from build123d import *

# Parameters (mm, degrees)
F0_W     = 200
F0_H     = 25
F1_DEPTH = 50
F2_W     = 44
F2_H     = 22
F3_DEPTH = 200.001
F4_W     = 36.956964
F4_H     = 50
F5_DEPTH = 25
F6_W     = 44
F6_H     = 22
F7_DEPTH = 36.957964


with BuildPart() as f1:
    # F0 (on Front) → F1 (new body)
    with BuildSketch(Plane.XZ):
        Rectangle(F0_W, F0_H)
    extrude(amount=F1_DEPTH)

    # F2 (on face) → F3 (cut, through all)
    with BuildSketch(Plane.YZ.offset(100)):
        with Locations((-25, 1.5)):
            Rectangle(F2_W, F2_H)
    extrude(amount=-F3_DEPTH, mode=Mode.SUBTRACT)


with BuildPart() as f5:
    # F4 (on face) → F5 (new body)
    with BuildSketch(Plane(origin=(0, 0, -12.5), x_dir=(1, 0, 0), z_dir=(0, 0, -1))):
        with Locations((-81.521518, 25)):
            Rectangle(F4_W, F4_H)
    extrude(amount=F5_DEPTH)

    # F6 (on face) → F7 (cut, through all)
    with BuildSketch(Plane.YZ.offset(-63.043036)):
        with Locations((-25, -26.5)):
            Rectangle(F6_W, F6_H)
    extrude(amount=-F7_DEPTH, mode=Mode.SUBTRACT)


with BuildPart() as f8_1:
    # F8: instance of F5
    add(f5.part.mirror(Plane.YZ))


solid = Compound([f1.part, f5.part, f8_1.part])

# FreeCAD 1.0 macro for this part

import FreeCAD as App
import Part
import Sketcher
from FreeCAD import Vector

doc = App.newDocument("Part")
params = doc.addObject("Spreadsheet::Sheet", "Params")
for row, (alias, value) in enumerate([
    ("sketch1_width", "200 mm"),
    ("sketch1_height", "25 mm"),
    ("pad1_length", "50 mm"),
    ("sketch2_width", "44 mm"),
    ("sketch2_height", "22 mm"),
    ("sketch3_height", "50 mm"),
    ("pad2_length", "25 mm"),
    ("sketch4_width", "44 mm"),
    ("sketch4_height", "22 mm"),
], start=1):
    params.set(f"A{row}", alias)
    params.set(f"B{row}", "=" + value)
    params.setAlias(f"B{row}", alias)

body = doc.addObject("PartDesign::Body", "Body")

# Sketch on XZ plane
sketch1 = body.newObject("Sketcher::SketchObject", "Sketch")
sketch1.AttachmentSupport = (doc.getObject("XZ_Plane"), [""])
sketch1.MapMode = "FlatFace"
sketch1.addGeometry([
    Part.LineSegment(Vector(-100, 12, 0), Vector(-100, -12, 0)),
    Part.LineSegment(Vector(-100, -12, 0), Vector(100, -12, 0)),
    Part.LineSegment(Vector(100, -12, 0), Vector(100, 12, 0)),
    Part.LineSegment(Vector(100, 12, 0), Vector(-100, 12, 0)),
], False)
sketch1.addConstraint([
    Sketcher.Constraint("Coincident", 0, 2, 1, 1),
    Sketcher.Constraint("Coincident", 1, 2, 2, 1),
    Sketcher.Constraint("Coincident", 2, 2, 3, 1),
    Sketcher.Constraint("Coincident", 3, 2, 0, 1),
    Sketcher.Constraint("Vertical", 0),
    Sketcher.Constraint("Horizontal", 1),
    Sketcher.Constraint("Vertical", 2),
    Sketcher.Constraint("Horizontal", 3),
    Sketcher.Constraint("Symmetric", 0, 2, 2, 2, -1, 1),
    Sketcher.Constraint("DistanceX", 1, 1, 1, 2, 200.0),
    Sketcher.Constraint("DistanceY", 0, 2, 0, 1, 25.0),
])
sketch1.setExpression("Constraints[9]", "Params.sketch1_width")
sketch1.setExpression("Constraints[10]", "Params.sketch1_height")
pad1 = body.newObject("PartDesign::Pad", "Pad")
pad1.Profile = sketch1
pad1.setExpression("Length", "Params.pad1_length")

# Sketch on YZ plane
sketch2 = body.newObject("Sketcher::SketchObject", "Sketch001")
sketch2.AttachmentSupport = (doc.getObject("YZ_Plane"), [""])
sketch2.MapMode = "FlatFace"
sketch2.AttachmentOffset = App.Placement(Vector(0, 0, 100), App.Rotation())
sketch2.addGeometry([
    Part.LineSegment(Vector(-47, 12, 0), Vector(-47, -10, 0)),
    Part.LineSegment(Vector(-47, -10, 0), Vector(-3, -10, 0)),
    Part.LineSegment(Vector(-3, -10, 0), Vector(-3, 12, 0)),
    Part.LineSegment(Vector(-3, 12, 0), Vector(-47, 12, 0)),
], False)
sketch2.addConstraint([
    Sketcher.Constraint("Coincident", 0, 2, 1, 1),
    Sketcher.Constraint("Coincident", 1, 2, 2, 1),
    Sketcher.Constraint("Coincident", 2, 2, 3, 1),
    Sketcher.Constraint("Coincident", 3, 2, 0, 1),
    Sketcher.Constraint("Vertical", 0),
    Sketcher.Constraint("Horizontal", 1),
    Sketcher.Constraint("Vertical", 2),
    Sketcher.Constraint("Horizontal", 3),
    Sketcher.Constraint("DistanceX", 1, 1, 1, 2, 44.0),
    Sketcher.Constraint("DistanceY", 0, 2, 0, 1, 22.0),
    Sketcher.Constraint("DistanceX", 0, 2, -1, 1, 47.0),
    Sketcher.Constraint("DistanceY", 0, 2, -1, 1, 9.5),
])
sketch2.setExpression("Constraints[8]", "Params.sketch2_width")
sketch2.setExpression("Constraints[9]", "Params.sketch2_height")
pocket1 = body.newObject("PartDesign::Pocket", "Pocket")
pocket1.Profile = sketch2
pocket1.Type = "ThroughAll"
body2 = doc.addObject("PartDesign::Body", "Body001")

# Sketch on XY plane
sketch3 = body2.newObject("Sketcher::SketchObject", "Sketch002")
sketch3.AttachmentSupport = (doc.getObject("XY_Plane001"), [""])
sketch3.MapMode = "FlatFace"
sketch3.AttachmentOffset = App.Placement(Vector(0, 0, -12.5), App.Rotation())
sketch3.addGeometry([
    Part.LineSegment(Vector(-100, -50, 0), Vector(-100, 0, 0)),
    Part.LineSegment(Vector(-100, 0, 0), Vector(-63, 0, 0)),
    Part.LineSegment(Vector(-63, 0, 0), Vector(-63, -50, 0)),
    Part.LineSegment(Vector(-63, -50, 0), Vector(-100, -50, 0)),
], False)
sketch3.addConstraint([
    Sketcher.Constraint("Coincident", 0, 2, 1, 1),
    Sketcher.Constraint("Coincident", 1, 2, 2, 1),
    Sketcher.Constraint("Coincident", 2, 2, 3, 1),
    Sketcher.Constraint("Coincident", 3, 2, 0, 1),
    Sketcher.Constraint("Vertical", 0),
    Sketcher.Constraint("Horizontal", 1),
    Sketcher.Constraint("Vertical", 2),
    Sketcher.Constraint("Horizontal", 3),
    Sketcher.Constraint("PointOnObject", 0, 2, -1),
    Sketcher.Constraint("DistanceY", 0, 1, 0, 2, 50.0),
    Sketcher.Constraint("DistanceX", 0, 2, -1, 1, 100.0),
    Sketcher.Constraint("DistanceX", 1, 1, 1, 2, 36.956964),
])
sketch3.setExpression("Constraints[9]", "Params.sketch3_height")
pad2 = body2.newObject("PartDesign::Pad", "Pad001")
pad2.Profile = sketch3
pad2.setExpression("Length", "Params.pad2_length")
pad2.Reversed = True

# Sketch on YZ plane
sketch4 = body2.newObject("Sketcher::SketchObject", "Sketch003")
sketch4.AttachmentSupport = (doc.getObject("YZ_Plane001"), [""])
sketch4.MapMode = "FlatFace"
sketch4.AttachmentOffset = App.Placement(Vector(0, 0, -63.043036), App.Rotation())
sketch4.addGeometry([
    Part.LineSegment(Vector(-47, -16, 0), Vector(-47, -38, 0)),
    Part.LineSegment(Vector(-47, -38, 0), Vector(-3, -38, 0)),
    Part.LineSegment(Vector(-3, -38, 0), Vector(-3, -16, 0)),
    Part.LineSegment(Vector(-3, -16, 0), Vector(-47, -16, 0)),
], False)
sketch4.addConstraint([
    Sketcher.Constraint("Coincident", 0, 2, 1, 1),
    Sketcher.Constraint("Coincident", 1, 2, 2, 1),
    Sketcher.Constraint("Coincident", 2, 2, 3, 1),
    Sketcher.Constraint("Coincident", 3, 2, 0, 1),
    Sketcher.Constraint("Vertical", 0),
    Sketcher.Constraint("Horizontal", 1),
    Sketcher.Constraint("Vertical", 2),
    Sketcher.Constraint("Horizontal", 3),
    Sketcher.Constraint("DistanceX", 1, 1, 1, 2, 44.0),
    Sketcher.Constraint("DistanceY", 0, 2, 0, 1, 22.0),
    Sketcher.Constraint("DistanceX", 0, 2, -1, 1, 47.0),
    Sketcher.Constraint("DistanceY", 0, 2, -1, 1, 37.5),
])
sketch4.setExpression("Constraints[8]", "Params.sketch4_width")
sketch4.setExpression("Constraints[9]", "Params.sketch4_height")
pocket2 = body2.newObject("PartDesign::Pocket", "Pocket001")
pocket2.Profile = sketch4
pocket2.Type = "ThroughAll"
body3 = doc.addObject("PartDesign::Body", "Body002")
doc.recompute()

mirroring = doc.addObject("Part::Mirroring", "Mirroring")
mirroring.Source = body2
mirroring.Base = Vector(0, 0, 0)
mirroring.Normal = Vector(1, 0, 0)
body3.BaseFeature = mirroring
doc.recompute()
mirroring.Visibility = False

doc.recompute()
